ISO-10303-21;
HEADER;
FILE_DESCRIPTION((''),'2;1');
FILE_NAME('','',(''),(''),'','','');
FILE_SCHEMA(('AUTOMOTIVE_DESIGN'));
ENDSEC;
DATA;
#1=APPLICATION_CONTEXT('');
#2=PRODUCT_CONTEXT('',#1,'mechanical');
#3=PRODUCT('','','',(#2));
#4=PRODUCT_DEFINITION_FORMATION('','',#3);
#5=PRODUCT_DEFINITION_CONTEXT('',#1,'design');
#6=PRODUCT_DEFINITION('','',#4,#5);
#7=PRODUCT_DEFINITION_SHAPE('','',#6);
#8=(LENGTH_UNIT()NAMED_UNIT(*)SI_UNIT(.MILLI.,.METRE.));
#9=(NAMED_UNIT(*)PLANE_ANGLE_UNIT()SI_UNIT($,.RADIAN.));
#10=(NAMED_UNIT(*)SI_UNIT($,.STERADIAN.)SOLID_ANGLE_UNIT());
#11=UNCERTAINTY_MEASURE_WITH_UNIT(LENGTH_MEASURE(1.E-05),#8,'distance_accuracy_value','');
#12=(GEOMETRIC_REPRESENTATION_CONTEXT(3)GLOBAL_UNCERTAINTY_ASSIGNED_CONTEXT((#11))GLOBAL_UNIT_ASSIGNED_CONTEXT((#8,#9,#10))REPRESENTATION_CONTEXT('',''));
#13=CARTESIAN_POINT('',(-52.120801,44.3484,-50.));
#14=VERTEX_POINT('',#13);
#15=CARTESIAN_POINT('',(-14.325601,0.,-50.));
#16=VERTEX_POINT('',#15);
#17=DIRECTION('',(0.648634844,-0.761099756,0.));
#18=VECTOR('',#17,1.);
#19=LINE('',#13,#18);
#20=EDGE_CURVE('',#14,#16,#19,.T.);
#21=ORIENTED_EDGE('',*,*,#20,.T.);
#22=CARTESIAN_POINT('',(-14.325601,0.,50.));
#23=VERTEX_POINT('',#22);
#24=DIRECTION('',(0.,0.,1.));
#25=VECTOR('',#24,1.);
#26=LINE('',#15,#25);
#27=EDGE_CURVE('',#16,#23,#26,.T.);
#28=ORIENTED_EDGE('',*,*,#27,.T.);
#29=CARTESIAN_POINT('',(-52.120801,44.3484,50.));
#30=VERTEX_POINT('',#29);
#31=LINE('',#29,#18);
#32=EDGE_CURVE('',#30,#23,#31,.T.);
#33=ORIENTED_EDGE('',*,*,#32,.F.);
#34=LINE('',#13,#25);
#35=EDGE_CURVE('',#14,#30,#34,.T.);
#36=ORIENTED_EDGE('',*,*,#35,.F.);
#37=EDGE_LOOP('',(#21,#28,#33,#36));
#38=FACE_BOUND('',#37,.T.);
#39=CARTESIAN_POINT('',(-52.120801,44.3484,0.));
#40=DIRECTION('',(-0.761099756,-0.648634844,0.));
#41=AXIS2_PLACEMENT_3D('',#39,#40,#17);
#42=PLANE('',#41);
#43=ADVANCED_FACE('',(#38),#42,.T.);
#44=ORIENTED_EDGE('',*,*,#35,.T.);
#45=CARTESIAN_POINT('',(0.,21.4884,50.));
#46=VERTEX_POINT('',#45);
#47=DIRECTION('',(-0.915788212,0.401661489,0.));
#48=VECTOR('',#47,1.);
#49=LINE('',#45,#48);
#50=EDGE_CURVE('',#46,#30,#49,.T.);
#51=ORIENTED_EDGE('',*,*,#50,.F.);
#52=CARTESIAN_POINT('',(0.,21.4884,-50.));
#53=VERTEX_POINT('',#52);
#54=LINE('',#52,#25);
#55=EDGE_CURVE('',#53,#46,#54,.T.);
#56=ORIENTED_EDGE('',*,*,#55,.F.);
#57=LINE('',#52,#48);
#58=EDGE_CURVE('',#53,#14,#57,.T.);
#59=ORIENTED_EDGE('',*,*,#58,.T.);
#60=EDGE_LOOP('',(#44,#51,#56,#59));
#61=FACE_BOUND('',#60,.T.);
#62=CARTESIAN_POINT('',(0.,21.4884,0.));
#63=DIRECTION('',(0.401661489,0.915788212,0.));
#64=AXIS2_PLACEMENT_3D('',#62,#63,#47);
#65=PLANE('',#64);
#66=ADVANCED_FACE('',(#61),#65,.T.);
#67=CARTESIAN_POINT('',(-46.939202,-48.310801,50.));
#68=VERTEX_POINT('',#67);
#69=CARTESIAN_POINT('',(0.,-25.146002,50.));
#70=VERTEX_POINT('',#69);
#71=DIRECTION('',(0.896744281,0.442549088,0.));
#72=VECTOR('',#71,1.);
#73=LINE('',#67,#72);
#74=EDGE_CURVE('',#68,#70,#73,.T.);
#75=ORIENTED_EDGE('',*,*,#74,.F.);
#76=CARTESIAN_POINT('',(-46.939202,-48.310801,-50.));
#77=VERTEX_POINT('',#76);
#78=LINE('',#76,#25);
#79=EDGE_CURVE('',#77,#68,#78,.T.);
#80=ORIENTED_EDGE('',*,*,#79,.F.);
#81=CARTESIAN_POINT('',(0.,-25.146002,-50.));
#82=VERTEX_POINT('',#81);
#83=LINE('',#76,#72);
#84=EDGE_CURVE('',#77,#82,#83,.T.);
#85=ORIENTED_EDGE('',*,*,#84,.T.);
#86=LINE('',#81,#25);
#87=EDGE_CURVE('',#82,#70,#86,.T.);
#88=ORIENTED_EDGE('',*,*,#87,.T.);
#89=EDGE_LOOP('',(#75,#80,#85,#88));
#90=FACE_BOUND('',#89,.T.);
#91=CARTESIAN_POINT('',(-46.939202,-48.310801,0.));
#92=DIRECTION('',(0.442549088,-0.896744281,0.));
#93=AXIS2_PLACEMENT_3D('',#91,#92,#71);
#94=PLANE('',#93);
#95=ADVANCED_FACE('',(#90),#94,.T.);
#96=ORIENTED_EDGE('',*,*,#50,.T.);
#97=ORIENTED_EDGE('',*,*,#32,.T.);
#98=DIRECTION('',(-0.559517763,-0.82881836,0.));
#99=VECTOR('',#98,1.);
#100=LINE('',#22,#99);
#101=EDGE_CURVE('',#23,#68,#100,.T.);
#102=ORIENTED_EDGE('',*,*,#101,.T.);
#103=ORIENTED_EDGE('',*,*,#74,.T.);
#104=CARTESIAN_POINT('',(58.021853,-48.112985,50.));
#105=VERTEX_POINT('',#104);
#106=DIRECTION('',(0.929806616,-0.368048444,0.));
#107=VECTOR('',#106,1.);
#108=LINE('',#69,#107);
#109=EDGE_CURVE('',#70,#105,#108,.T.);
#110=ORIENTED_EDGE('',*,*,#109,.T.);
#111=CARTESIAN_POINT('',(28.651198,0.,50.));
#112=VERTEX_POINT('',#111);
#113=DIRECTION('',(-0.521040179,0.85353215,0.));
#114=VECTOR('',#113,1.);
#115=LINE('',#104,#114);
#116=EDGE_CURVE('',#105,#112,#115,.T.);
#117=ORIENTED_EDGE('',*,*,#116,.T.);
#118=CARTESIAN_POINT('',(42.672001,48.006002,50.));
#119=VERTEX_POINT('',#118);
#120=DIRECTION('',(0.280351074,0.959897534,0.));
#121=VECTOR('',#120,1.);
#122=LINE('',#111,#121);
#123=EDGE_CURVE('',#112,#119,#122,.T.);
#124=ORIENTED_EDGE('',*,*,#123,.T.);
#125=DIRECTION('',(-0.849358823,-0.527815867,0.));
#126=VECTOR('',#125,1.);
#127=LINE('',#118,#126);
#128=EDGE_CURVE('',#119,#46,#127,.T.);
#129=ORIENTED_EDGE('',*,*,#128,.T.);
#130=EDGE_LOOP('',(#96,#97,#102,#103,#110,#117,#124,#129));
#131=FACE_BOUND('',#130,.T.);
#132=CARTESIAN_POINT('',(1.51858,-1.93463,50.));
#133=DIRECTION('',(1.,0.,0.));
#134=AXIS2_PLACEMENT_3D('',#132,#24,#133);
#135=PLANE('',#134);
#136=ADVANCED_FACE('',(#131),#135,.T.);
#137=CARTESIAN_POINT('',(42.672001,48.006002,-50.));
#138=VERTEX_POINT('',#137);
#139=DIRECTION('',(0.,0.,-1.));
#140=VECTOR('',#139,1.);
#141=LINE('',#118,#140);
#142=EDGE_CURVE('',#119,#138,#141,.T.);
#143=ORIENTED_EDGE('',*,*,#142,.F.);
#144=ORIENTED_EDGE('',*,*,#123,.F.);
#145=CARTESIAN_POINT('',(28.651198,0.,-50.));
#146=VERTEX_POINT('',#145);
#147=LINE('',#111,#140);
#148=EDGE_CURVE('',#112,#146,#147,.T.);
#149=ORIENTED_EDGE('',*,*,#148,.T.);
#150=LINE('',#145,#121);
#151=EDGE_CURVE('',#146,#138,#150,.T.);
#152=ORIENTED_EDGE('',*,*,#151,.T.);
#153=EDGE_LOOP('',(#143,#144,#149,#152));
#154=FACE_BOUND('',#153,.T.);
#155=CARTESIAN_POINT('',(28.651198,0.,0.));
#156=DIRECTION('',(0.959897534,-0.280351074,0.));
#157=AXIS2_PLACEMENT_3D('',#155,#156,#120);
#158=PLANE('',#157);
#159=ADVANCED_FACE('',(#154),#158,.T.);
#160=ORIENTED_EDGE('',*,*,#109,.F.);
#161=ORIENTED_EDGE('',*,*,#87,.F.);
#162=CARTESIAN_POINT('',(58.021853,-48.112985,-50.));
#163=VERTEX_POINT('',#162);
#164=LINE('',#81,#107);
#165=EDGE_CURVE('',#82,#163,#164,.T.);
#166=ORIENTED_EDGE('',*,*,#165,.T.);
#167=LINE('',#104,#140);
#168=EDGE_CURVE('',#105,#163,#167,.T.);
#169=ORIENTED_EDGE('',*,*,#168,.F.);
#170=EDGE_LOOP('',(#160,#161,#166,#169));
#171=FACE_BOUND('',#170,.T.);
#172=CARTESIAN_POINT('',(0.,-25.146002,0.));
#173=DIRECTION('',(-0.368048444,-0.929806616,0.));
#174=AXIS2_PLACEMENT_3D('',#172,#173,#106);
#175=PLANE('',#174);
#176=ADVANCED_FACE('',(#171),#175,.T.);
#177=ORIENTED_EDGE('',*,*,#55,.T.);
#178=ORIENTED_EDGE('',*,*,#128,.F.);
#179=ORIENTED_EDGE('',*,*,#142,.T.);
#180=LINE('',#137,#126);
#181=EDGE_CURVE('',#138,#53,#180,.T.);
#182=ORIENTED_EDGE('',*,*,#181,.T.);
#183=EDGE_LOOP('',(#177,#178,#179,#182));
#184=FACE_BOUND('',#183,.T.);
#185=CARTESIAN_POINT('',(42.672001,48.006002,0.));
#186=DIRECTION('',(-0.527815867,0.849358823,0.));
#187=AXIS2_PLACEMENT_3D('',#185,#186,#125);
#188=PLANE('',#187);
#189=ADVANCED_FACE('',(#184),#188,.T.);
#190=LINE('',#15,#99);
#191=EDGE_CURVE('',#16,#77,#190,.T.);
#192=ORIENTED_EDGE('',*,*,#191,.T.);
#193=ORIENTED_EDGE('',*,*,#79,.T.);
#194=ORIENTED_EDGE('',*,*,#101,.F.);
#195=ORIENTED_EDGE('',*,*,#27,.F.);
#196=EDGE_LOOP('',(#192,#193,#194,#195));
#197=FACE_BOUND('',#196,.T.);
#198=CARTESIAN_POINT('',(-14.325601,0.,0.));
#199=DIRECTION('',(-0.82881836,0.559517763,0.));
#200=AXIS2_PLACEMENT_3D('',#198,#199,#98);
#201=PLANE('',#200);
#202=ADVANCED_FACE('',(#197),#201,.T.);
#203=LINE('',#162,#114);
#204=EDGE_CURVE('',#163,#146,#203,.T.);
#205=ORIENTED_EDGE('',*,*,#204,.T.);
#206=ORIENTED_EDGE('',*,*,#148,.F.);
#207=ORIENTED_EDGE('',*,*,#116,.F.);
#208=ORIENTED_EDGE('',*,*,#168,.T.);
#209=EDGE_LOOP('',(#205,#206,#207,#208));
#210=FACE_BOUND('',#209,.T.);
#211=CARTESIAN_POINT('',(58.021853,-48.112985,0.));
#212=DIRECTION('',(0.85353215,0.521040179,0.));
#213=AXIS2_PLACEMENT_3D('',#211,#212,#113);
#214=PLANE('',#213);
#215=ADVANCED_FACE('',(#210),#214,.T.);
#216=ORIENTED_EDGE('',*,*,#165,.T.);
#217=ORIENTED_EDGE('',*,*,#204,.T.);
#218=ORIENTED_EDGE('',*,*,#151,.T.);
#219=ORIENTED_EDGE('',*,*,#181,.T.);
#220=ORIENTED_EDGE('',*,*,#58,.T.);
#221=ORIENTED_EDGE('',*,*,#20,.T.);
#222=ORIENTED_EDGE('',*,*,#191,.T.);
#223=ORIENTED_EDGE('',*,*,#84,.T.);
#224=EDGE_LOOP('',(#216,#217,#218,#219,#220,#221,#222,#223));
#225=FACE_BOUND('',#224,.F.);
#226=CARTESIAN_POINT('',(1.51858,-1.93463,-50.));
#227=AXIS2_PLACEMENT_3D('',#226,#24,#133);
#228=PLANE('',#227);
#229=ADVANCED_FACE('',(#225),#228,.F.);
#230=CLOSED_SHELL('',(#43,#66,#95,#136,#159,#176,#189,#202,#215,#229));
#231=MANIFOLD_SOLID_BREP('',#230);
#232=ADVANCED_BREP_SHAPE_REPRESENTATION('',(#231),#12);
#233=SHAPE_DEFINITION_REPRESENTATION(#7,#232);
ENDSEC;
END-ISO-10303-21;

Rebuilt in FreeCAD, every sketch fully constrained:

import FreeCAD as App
import Part
import Sketcher


def add_polygon(sketch, points):
    """Adds a closed chain of lines whose ends are joined by coincident constraints."""
    first, n = sketch.GeometryCount, len(points)
    for a, b in zip(points, points[1:] + points[:1]):
        sketch.addGeometry(Part.LineSegment(App.Vector(*a, 0), App.Vector(*b, 0)), False)
    for i in range(n):
        sketch.addConstraint(Sketcher.Constraint("Coincident", first + i, 2, first + (i + 1) % n, 1))

doc = App.newDocument("Part")
params = doc.addObject("Spreadsheet::Sheet", "Params")
for row, (alias, value) in enumerate([
    ("pad1_length", "100 mm"),
], start=1):
    params.set(f"A{row}", alias)
    params.set(f"B{row}", "=" + value)
    params.setAlias(f"B{row}", alias)

body = doc.addObject("PartDesign::Body", "Body")

# Sketch on XY plane
sketch1 = body.newObject("Sketcher::SketchObject", "Sketch")
sketch1.AttachmentSupport = (doc.getObject("XY_Plane"), [""])
sketch1.MapMode = "FlatFace"
add_polygon(sketch1, [(43, 48), (0, 21), (-52, 44), (-14, 0), (-47, -48), (0, -25), (58, -48), (29, 0)])  # lines 0-7
sketch1.addConstraint([
    Sketcher.Constraint("PointOnObject", 0, 2, -2),
    Sketcher.Constraint("PointOnObject", 2, 2, -1),
    Sketcher.Constraint("PointOnObject", 4, 2, -2),
    Sketcher.Constraint("PointOnObject", 6, 2, -1),
    Sketcher.Constraint("DistanceY", 0, 2, 1, 2, 22.86),
    Sketcher.Constraint("DistanceY", 4, 2, -1, 1, 25.146002),
    Sketcher.Constraint("DistanceX", -1, 1, 7, 2, 42.672001),
    Sketcher.Constraint("DistanceY", -1, 1, 0, 2, 21.4884),
    Sketcher.Constraint("DistanceX", 1, 2, -1, 1, 52.120801),
    Sketcher.Constraint("DistanceX", 2, 2, -1, 1, 14.325601),
    Sketcher.Constraint("DistanceY", 3, 2, -1, 1, 48.310801),
    Sketcher.Constraint("DistanceX", -1, 1, 6, 2, 28.651198),
    Sketcher.Constraint("DistanceX", 3, 2, 2, 2, 32.613601),
    Sketcher.Constraint("Distance", 0, 50.240252),
    Sketcher.Constraint("Distance", 6, 56.369271),
    Sketcher.Constraint("Distance", 5, 62.402065),
])
pad1 = body.newObject("PartDesign::Pad", "Pad")
pad1.Profile = sketch1
pad1.setExpression("Length", "Params.pad1_length")
pad1.Midplane = True

doc.recompute()
